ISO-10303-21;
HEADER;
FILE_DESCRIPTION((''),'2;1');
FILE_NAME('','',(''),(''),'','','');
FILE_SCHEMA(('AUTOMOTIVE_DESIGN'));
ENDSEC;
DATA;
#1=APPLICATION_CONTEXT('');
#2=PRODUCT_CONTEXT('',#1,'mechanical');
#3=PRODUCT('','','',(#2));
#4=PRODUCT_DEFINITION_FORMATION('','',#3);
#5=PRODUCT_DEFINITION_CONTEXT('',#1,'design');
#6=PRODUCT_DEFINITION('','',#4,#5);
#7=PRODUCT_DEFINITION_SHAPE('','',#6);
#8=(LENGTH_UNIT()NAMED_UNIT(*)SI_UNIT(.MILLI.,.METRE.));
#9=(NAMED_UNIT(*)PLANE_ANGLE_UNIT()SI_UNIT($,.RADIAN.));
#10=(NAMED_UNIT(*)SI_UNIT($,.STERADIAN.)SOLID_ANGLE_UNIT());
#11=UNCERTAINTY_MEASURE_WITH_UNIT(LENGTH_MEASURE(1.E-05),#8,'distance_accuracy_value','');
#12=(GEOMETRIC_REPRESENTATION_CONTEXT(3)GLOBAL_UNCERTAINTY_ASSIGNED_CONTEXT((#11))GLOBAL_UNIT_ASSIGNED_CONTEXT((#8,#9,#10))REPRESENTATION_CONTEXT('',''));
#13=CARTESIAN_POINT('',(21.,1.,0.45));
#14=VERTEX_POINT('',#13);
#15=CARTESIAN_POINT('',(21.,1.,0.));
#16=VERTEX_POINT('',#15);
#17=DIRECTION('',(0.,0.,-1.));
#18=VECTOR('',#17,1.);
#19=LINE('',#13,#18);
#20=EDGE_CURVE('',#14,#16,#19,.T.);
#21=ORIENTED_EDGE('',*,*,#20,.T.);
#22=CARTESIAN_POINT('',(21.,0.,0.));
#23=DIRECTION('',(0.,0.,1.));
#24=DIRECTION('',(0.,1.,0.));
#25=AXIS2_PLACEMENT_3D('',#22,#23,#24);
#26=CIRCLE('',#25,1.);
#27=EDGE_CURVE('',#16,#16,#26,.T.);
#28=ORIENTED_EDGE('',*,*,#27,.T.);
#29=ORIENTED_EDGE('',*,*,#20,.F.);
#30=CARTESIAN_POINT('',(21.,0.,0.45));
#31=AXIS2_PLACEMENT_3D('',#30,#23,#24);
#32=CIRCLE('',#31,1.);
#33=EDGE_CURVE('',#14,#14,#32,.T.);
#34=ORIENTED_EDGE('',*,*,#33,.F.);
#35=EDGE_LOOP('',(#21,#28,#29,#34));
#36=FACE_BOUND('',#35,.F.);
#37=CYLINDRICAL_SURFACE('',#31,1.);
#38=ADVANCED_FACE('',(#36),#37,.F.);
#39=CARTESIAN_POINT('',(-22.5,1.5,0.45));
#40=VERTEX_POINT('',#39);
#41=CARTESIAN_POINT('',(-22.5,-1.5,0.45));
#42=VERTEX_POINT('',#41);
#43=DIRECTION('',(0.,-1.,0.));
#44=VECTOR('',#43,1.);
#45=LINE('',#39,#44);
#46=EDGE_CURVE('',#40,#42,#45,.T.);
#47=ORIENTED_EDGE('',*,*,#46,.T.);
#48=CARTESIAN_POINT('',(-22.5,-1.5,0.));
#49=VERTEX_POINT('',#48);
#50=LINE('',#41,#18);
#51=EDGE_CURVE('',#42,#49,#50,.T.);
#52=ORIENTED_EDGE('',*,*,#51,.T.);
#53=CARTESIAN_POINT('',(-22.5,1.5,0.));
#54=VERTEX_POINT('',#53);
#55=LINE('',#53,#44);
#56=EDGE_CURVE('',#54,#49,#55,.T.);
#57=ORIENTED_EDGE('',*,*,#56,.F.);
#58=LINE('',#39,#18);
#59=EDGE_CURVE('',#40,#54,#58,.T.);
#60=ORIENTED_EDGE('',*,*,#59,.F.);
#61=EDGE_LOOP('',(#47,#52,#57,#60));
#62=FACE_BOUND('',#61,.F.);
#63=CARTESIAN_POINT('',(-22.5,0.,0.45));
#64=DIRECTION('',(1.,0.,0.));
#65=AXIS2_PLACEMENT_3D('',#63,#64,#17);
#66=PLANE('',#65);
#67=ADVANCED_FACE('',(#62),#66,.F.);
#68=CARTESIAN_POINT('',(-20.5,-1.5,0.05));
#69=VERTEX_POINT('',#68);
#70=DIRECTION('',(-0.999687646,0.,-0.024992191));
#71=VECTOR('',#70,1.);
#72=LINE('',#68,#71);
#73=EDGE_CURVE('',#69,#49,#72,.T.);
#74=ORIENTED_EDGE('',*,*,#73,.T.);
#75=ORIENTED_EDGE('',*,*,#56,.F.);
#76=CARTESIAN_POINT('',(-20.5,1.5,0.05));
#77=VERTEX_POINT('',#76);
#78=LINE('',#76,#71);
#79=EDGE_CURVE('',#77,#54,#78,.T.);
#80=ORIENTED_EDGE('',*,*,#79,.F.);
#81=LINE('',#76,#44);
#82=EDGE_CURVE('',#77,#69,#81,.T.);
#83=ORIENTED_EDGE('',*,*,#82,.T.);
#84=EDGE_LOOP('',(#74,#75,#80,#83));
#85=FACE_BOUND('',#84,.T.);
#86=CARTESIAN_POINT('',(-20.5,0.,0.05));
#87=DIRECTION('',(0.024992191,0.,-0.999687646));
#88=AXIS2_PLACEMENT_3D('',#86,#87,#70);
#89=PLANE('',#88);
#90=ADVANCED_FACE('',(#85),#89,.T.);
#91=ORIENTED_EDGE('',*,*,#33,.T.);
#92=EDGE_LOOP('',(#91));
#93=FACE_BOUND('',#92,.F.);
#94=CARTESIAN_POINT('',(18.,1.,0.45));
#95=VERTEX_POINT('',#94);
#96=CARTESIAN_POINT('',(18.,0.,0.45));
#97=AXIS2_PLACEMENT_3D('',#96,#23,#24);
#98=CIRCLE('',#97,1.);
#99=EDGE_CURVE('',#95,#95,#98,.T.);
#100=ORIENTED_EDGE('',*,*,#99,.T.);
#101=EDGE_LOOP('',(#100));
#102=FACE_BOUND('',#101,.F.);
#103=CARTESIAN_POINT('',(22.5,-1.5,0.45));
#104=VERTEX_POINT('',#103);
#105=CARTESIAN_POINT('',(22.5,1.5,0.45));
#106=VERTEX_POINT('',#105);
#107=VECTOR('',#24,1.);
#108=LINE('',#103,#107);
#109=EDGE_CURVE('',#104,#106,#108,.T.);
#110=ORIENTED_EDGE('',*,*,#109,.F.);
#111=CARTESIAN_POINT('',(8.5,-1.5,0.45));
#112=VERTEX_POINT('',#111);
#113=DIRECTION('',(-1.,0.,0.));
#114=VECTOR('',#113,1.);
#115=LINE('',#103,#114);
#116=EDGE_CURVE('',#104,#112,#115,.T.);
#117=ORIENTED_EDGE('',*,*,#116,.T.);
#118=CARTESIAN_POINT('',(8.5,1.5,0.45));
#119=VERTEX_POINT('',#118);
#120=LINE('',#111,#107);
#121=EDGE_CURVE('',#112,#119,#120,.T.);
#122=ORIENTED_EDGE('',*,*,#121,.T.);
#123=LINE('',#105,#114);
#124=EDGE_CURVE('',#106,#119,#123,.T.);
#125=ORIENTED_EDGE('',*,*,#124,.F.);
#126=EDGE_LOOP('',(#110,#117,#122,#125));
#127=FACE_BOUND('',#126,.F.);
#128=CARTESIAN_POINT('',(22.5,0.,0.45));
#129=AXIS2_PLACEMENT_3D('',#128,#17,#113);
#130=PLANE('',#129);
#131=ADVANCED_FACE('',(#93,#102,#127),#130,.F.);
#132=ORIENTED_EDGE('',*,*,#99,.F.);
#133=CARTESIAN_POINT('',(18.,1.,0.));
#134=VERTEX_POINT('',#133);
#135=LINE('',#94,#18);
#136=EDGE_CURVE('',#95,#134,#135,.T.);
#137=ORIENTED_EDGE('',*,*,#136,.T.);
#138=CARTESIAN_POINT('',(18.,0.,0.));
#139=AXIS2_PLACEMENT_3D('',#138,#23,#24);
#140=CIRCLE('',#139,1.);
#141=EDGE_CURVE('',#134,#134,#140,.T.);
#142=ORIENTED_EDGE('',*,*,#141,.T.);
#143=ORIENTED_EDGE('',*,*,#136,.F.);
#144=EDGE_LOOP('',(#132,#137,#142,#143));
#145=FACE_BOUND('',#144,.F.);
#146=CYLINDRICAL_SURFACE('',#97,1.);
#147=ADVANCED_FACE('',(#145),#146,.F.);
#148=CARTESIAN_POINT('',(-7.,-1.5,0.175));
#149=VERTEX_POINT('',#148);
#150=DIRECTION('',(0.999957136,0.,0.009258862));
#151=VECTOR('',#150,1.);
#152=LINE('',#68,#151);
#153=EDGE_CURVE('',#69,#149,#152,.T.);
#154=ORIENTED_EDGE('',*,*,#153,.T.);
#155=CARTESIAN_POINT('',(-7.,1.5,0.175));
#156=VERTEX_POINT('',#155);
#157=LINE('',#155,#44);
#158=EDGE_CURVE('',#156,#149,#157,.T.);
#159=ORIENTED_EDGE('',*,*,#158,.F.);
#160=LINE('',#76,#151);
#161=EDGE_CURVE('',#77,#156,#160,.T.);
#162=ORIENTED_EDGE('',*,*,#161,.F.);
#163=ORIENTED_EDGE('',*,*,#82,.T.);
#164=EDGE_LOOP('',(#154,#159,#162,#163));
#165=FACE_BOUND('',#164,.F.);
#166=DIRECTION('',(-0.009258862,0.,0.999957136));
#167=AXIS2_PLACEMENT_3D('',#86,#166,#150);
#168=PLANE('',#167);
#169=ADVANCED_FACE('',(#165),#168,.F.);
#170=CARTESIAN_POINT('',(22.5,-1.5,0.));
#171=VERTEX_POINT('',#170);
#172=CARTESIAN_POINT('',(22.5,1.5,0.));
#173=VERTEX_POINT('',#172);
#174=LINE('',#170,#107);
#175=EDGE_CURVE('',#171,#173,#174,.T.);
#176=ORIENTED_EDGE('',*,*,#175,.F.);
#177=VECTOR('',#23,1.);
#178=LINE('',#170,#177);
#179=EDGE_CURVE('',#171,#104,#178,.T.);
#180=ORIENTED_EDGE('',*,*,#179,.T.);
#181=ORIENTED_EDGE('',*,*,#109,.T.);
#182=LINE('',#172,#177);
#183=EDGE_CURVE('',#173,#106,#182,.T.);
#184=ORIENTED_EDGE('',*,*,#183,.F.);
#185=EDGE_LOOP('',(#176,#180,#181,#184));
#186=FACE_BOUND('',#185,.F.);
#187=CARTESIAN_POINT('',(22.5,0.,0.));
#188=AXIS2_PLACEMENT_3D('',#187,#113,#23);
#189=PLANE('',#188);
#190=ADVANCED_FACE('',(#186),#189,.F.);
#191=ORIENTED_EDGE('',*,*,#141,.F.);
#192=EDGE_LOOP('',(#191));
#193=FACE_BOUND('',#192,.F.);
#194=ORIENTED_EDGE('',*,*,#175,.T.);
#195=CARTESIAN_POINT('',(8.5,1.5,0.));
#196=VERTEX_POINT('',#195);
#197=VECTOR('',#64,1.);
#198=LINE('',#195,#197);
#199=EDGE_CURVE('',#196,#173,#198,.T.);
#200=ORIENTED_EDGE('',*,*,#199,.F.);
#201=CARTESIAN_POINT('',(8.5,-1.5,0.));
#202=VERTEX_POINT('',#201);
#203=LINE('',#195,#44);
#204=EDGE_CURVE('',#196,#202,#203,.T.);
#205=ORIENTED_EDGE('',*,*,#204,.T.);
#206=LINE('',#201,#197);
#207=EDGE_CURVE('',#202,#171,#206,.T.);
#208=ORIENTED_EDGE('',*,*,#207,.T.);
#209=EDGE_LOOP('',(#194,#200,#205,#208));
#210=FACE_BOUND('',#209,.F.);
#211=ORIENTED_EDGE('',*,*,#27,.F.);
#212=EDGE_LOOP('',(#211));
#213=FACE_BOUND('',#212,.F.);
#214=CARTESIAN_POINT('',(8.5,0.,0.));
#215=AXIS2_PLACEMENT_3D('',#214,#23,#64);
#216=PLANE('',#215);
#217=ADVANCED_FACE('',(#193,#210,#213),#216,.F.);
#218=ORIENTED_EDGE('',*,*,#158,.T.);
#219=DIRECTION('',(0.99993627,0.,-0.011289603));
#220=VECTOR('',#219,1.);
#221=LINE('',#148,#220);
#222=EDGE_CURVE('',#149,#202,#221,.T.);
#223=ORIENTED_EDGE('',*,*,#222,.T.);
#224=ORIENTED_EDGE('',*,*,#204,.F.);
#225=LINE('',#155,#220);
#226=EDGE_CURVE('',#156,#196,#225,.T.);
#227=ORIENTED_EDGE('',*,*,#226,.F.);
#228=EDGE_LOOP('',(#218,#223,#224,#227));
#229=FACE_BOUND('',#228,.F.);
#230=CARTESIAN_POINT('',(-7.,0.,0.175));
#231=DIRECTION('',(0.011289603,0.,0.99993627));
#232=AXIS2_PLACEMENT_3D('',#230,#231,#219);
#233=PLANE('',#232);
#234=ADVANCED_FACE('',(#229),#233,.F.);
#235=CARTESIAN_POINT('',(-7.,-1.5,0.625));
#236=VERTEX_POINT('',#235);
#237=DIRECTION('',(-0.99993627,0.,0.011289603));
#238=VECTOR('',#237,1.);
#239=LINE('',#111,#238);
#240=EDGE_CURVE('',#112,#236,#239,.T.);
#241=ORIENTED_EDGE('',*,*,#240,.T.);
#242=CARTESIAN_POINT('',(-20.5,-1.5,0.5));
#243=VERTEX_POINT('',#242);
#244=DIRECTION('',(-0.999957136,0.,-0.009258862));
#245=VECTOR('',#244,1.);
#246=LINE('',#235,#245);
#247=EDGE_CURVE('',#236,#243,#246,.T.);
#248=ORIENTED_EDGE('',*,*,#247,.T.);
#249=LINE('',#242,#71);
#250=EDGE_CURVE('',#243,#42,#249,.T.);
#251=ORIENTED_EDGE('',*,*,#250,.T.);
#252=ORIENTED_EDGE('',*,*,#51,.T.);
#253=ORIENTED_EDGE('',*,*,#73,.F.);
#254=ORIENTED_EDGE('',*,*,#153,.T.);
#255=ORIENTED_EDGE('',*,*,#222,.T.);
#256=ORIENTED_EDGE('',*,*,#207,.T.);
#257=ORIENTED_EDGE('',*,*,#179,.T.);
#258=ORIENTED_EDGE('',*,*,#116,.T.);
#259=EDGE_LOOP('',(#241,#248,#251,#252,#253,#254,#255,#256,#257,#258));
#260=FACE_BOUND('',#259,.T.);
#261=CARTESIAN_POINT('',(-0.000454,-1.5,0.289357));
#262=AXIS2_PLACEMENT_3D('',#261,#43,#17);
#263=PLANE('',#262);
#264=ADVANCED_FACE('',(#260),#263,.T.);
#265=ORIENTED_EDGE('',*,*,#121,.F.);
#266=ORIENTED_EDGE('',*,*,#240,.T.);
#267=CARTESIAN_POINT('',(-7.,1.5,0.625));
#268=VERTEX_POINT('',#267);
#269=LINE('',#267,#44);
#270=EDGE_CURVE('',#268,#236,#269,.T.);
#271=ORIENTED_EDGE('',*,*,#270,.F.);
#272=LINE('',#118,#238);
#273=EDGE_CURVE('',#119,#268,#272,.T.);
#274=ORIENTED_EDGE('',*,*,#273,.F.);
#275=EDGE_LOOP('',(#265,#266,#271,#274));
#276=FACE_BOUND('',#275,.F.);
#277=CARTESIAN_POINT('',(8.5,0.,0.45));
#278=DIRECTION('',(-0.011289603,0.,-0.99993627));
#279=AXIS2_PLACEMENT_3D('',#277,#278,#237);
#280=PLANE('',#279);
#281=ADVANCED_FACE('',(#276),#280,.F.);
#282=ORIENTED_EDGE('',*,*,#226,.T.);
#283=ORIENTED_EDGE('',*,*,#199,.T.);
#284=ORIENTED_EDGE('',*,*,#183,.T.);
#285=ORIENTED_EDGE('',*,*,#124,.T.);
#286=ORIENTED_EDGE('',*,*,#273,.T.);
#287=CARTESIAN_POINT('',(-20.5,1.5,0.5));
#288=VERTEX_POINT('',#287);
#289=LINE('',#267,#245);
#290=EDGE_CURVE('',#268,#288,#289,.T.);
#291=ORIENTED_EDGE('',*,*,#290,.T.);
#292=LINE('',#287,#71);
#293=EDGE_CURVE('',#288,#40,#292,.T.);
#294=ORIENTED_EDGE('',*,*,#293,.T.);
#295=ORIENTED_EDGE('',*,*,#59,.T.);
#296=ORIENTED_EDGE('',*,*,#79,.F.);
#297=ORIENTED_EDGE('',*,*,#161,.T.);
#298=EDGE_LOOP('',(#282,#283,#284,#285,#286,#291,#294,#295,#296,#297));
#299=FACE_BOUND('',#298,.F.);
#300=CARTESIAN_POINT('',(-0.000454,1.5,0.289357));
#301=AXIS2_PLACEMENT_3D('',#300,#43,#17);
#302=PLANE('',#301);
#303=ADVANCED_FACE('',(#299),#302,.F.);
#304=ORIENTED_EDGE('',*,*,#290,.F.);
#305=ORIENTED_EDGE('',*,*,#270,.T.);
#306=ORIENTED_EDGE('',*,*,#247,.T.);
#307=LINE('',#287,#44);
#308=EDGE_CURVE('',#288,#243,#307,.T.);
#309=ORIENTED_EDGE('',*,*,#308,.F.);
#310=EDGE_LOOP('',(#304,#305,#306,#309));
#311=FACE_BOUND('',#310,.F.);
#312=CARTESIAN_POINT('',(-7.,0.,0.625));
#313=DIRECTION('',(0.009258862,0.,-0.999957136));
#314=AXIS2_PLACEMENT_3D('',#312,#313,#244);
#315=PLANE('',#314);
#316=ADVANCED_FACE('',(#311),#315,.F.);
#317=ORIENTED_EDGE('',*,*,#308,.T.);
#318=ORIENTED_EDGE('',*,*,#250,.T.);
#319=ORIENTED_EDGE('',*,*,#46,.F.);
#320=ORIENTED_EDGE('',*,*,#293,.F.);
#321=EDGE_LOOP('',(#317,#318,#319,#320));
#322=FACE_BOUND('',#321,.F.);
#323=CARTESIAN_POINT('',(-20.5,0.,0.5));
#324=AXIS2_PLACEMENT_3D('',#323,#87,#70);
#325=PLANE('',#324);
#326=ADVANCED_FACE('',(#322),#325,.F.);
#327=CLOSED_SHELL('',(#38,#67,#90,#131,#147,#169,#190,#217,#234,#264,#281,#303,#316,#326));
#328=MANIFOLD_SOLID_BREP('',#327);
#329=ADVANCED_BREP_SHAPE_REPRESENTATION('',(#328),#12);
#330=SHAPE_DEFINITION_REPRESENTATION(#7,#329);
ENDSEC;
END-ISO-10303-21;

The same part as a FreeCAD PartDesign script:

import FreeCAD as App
import Part
import Sketcher
Q = App.Units.Quantity


def add_polygon(sketch, points):
    """Adds a closed chain of lines whose ends are joined by coincident constraints."""
    first, n = sketch.GeometryCount, len(points)
    for a, b in zip(points, points[1:] + points[:1]):
        sketch.addGeometry(Part.LineSegment(App.Vector(*a, 0), App.Vector(*b, 0)), False)
    for i in range(n):
        sketch.addConstraint(Sketcher.Constraint("Coincident", first + i, 2, first + (i + 1) % n, 1))

doc = App.newDocument("Part")
body = doc.addObject("PartDesign::Body", "Body")

# Sketch on XZ plane
sketch1 = body.newObject("Sketcher::SketchObject", "Sketch")
sketch1.AttachmentSupport = (doc.getObject("XZ_Plane"), [""])
sketch1.MapMode = "FlatFace"
add_polygon(sketch1, [(22.5, 0.45), (8.5, 0.45), (-7, 0.625), (-20.5, 0.5), (-22.5, 0.45), (-22.5, 0), (-20.5, 0.05), (-7, 0.175), (8.5, 0), (22.5, 0)])  # lines 0-9
sketch1.addConstraint([
    Sketcher.Constraint("Horizontal", 0),
    Sketcher.Constraint("Vertical", 4),
    Sketcher.Constraint("Horizontal", 8),
    Sketcher.Constraint("Vertical", 9),
    Sketcher.Constraint("Symmetric", 4, 2, 8, 2, -1, 1),
    Sketcher.Constraint("PointOnObject", 4, 2, -1),
    Sketcher.Constraint("Parallel", 3, 5),
    Sketcher.Constraint("Parallel", 2, 6),
    Sketcher.Constraint("Parallel", 1, 7),
    Sketcher.Constraint("Horizontal", 0, 2, 3, 2),
    Sketcher.Constraint("Vertical", 2, 2, 5, 2),
    Sketcher.Constraint("Vertical", 1, 2, 6, 2),
    Sketcher.Constraint("DistanceX", 0, 2, 0, 1, Q("14 mm")),
    Sketcher.Constraint("DistanceX", 1, 2, -1, 1, Q("7 mm")),
    Sketcher.Constraint("DistanceX", 2, 2, 0, 2, Q("29 mm")),
    Sketcher.Constraint("DistanceX", 3, 2, 2, 2, Q("2 mm")),
    Sketcher.Constraint("DistanceY", 4, 2, 4, 1, Q("0.45 mm")),
    Sketcher.Constraint("DistanceY", -1, 1, 2, 2, Q("0.5 mm")),
    Sketcher.Constraint("Angle", 2, Q("-179.4695 deg")),
])
pad1 = body.newObject("PartDesign::Pad", "Pad")
pad1.Profile = sketch1
pad1.Length = 3
pad1.Midplane = True

# Sketch on XY plane
sketch2 = body.newObject("Sketcher::SketchObject", "Sketch001")
sketch2.AttachmentSupport = (doc.getObject("XY_Plane"), [""])
sketch2.MapMode = "FlatFace"
sketch2.AttachmentOffset = App.Placement(App.Vector(0, 0, 0.45), App.Rotation())
sketch2.addGeometry(Part.Circle(App.Vector(18, 0, 0), App.Vector(0, 0, 1), 1), False)
sketch2.addConstraint([
    Sketcher.Constraint("PointOnObject", 0, 3, -1),
    Sketcher.Constraint("Diameter", 0, Q("2 mm")),
    Sketcher.Constraint("DistanceX", -1, 1, 0, 3, Q("18 mm")),
])
pocket1 = body.newObject("PartDesign::Pocket", "Pocket")
pocket1.Profile = sketch2
pocket1.Length = 0.45

# Sketch on XY plane
sketch3 = body.newObject("Sketcher::SketchObject", "Sketch002")
sketch3.AttachmentSupport = (doc.getObject("XY_Plane"), [""])
sketch3.MapMode = "FlatFace"
sketch3.AttachmentOffset = App.Placement(App.Vector(0, 0, 0.45), App.Rotation())
sketch3.addGeometry(Part.Circle(App.Vector(21, 0, 0), App.Vector(0, 0, 1), 1), False)
sketch3.addConstraint([
    Sketcher.Constraint("PointOnObject", 0, 3, -1),
    Sketcher.Constraint("Diameter", 0, Q("2 mm")),
    Sketcher.Constraint("DistanceX", -1, 1, 0, 3, Q("21 mm")),
])
pocket2 = body.newObject("PartDesign::Pocket", "Pocket001")
pocket2.Profile = sketch3
pocket2.Length = 0.45

doc.recompute()
